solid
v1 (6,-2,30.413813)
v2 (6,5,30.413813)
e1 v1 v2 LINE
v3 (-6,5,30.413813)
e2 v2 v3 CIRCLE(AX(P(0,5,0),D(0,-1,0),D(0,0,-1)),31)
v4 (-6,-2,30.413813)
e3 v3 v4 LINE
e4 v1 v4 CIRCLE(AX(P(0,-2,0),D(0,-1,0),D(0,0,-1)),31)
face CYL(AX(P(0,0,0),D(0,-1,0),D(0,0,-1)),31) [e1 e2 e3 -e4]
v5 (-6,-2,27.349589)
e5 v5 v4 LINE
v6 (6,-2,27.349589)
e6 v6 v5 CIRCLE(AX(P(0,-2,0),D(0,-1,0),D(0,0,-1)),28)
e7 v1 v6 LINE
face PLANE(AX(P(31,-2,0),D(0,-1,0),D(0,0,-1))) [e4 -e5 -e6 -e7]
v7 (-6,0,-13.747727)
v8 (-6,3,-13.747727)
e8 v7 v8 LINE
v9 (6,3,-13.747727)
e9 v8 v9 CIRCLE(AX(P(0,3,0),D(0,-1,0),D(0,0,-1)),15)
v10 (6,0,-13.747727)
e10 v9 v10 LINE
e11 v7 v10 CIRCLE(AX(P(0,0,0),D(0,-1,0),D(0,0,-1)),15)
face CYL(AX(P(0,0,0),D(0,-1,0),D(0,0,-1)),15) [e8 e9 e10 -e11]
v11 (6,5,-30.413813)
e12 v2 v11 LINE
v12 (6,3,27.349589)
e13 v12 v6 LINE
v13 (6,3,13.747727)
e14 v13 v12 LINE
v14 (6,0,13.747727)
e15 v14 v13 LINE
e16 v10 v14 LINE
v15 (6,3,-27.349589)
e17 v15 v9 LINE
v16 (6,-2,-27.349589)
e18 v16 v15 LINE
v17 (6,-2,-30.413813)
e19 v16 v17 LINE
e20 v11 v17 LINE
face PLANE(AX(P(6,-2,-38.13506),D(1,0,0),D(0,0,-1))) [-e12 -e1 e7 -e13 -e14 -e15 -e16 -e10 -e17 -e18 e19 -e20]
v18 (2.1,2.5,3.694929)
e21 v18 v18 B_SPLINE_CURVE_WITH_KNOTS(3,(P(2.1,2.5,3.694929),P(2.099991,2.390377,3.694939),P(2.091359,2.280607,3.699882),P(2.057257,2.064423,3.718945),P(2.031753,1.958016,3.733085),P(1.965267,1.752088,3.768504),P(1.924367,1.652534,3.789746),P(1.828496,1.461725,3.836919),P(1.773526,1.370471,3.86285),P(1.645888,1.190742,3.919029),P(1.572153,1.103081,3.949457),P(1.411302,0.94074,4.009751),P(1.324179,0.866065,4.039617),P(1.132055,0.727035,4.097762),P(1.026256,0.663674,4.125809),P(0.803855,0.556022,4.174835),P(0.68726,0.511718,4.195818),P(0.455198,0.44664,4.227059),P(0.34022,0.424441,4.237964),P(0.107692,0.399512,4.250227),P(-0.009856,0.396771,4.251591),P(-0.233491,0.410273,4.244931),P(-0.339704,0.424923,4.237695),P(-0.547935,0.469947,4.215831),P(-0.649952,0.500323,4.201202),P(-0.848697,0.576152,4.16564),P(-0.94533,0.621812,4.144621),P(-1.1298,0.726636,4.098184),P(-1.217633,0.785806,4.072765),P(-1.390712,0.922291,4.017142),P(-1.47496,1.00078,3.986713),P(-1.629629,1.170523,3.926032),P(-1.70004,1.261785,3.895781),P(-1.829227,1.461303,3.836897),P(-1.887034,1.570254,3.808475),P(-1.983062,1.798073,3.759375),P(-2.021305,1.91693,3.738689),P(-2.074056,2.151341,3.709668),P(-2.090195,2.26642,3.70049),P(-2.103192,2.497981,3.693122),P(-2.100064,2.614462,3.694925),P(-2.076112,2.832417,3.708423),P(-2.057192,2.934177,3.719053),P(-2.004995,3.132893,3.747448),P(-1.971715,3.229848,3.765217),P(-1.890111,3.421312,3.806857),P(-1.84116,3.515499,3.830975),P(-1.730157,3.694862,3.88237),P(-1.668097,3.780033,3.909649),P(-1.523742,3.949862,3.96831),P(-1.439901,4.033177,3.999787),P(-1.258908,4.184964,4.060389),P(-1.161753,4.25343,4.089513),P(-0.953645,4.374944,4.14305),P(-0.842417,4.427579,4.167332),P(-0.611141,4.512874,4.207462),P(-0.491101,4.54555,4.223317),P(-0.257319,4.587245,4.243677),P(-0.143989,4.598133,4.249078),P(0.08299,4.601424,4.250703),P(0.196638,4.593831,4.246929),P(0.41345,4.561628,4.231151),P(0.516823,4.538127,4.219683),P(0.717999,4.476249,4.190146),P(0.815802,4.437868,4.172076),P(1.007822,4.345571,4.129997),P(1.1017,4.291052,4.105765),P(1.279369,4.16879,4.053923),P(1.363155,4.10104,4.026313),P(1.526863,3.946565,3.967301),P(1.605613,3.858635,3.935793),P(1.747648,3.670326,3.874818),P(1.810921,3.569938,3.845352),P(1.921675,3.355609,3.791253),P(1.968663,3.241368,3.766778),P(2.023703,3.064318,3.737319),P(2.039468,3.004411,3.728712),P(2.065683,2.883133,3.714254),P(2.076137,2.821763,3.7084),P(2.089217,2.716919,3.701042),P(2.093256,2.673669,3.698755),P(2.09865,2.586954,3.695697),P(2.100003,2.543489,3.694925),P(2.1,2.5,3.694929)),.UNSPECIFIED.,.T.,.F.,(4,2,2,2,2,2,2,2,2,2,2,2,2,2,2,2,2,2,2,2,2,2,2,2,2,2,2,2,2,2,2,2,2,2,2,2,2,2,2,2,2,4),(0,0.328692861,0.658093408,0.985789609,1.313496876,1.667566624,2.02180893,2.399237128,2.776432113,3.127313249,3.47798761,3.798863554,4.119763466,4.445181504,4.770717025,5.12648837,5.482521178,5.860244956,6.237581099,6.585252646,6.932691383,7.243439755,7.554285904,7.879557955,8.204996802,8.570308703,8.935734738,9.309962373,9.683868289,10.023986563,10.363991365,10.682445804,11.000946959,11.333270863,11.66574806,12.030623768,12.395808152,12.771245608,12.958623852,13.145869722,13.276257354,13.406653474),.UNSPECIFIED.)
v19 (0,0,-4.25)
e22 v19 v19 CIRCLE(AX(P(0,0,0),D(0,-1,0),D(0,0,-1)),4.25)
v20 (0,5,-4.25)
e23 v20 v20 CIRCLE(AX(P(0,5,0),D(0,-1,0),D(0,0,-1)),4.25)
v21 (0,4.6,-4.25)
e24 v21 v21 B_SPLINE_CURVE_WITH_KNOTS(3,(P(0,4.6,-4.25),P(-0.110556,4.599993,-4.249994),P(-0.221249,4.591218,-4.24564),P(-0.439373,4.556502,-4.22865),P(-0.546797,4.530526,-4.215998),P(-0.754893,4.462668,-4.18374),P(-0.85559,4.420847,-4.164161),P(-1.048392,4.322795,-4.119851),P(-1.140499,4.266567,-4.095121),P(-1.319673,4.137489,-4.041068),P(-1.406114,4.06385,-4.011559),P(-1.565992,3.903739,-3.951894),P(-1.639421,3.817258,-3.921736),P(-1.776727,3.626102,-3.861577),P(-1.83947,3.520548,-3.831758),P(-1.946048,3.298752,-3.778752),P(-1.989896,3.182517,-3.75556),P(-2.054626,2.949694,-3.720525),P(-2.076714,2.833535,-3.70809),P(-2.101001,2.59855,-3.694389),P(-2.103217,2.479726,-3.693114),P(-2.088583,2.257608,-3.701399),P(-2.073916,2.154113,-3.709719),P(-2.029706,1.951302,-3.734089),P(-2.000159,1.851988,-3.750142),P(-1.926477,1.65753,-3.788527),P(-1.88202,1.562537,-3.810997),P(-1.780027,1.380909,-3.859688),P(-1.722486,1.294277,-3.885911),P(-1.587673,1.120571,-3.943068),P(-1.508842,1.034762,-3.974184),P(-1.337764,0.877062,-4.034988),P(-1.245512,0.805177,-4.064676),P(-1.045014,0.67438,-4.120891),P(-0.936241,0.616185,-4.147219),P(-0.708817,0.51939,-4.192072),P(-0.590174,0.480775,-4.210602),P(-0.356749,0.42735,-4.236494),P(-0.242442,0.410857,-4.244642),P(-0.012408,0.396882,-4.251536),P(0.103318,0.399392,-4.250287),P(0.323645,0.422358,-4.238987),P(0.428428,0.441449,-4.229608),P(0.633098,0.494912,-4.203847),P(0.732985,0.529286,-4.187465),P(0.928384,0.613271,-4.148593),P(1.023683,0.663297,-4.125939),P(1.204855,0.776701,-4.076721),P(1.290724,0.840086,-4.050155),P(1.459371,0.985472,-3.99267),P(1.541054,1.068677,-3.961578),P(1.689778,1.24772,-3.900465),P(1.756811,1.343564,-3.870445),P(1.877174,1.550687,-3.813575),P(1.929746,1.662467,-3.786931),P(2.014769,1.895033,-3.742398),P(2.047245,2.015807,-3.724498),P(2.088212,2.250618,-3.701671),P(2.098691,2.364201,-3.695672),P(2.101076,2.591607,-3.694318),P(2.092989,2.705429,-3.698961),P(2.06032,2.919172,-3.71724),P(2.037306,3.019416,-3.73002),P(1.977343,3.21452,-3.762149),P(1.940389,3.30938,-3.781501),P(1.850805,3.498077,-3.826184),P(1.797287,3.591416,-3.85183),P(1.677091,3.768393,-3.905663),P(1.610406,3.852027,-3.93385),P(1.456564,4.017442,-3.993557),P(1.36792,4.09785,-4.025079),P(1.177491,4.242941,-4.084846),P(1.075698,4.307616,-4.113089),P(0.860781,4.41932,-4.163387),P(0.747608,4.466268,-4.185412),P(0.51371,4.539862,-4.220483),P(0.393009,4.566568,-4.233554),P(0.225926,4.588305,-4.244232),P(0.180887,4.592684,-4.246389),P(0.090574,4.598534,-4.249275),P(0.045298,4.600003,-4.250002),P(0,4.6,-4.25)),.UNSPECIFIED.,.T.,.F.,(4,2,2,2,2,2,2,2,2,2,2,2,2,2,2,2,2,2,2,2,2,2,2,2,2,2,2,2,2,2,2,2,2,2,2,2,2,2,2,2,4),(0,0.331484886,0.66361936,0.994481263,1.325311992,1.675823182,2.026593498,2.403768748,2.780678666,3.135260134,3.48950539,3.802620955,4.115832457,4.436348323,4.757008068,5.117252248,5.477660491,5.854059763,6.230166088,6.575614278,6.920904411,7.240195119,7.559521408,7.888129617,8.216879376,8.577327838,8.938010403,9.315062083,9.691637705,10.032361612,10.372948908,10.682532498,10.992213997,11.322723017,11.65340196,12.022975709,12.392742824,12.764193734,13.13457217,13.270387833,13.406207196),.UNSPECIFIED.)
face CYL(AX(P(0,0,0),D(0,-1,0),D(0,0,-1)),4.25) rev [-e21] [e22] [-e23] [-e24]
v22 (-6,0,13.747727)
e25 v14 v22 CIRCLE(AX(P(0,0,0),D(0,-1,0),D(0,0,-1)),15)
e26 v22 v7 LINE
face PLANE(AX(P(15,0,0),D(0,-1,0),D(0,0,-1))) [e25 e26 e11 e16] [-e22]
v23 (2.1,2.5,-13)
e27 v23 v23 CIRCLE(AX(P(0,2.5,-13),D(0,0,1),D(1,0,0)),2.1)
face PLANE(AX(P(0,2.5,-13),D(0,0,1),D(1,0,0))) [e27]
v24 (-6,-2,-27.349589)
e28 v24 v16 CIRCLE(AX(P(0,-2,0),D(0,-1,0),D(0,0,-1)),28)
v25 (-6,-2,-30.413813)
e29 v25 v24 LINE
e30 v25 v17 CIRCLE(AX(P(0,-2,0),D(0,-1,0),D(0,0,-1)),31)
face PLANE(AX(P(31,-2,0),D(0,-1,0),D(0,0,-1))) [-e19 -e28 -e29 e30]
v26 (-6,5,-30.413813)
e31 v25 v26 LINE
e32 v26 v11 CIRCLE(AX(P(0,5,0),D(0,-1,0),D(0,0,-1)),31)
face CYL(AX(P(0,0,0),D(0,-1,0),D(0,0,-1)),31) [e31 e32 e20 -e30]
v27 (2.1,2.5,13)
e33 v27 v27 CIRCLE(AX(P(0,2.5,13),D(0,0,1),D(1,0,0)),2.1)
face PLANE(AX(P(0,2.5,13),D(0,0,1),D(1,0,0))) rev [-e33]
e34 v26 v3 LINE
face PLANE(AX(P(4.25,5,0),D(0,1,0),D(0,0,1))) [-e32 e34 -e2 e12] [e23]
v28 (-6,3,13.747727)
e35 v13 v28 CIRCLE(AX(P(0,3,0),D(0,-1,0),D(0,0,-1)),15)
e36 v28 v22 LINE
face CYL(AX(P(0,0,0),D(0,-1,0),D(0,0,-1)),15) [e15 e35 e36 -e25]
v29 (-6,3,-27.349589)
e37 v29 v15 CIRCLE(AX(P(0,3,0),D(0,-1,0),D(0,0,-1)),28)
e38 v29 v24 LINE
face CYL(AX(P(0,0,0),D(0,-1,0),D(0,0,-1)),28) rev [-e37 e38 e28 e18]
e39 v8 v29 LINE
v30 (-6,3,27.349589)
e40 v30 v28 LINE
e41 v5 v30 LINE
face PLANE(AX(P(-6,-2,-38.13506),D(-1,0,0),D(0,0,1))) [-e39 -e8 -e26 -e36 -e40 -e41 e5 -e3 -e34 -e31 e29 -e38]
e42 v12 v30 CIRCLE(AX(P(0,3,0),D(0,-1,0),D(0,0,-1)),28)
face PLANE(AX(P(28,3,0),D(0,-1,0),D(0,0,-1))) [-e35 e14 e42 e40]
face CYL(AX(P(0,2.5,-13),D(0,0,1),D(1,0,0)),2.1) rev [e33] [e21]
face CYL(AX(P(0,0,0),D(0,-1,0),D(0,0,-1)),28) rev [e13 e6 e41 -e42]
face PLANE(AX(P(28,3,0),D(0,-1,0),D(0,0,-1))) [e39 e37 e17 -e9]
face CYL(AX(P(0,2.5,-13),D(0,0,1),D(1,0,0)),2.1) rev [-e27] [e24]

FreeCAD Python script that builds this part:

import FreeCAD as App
import Part
import Sketcher
from FreeCAD import Vector


def add_polygon(sketch, points):
    """Adds a closed chain of lines whose ends are joined by coincident constraints."""
    first, n = sketch.GeometryCount, len(points)
    for a, b in zip(points, points[1:] + points[:1]):
        sketch.addGeometry(Part.LineSegment(App.Vector(*a, 0), App.Vector(*b, 0)), False)
    for i in range(n):
        sketch.addConstraint(Sketcher.Constraint("Coincident", first + i, 2, first + (i + 1) % n, 1))

doc = App.newDocument("Part")
body = doc.addObject("PartDesign::Body", "Body")

sketch1 = body.newObject("Sketcher::SketchObject", "Sketch")
sketch1.AttachmentSupport = (doc.getObject("XY_Plane"), [""])
sketch1.MapMode = "FlatFace"
add_polygon(sketch1, [(4.2, 5), (4.2, 0), (15, 0), (15, 3), (28, 3), (28, -2), (31, -2), (31, 5)])
sketch1.addConstraint(Sketcher.Constraint("Vertical", 0))
sketch1.addConstraint(Sketcher.Constraint("Horizontal", 1))
sketch1.addConstraint(Sketcher.Constraint("Vertical", 2))
sketch1.addConstraint(Sketcher.Constraint("Horizontal", 3))
sketch1.addConstraint(Sketcher.Constraint("Vertical", 4))
sketch1.addConstraint(Sketcher.Constraint("Horizontal", 5))
sketch1.addConstraint(Sketcher.Constraint("Vertical", 6))
sketch1.addConstraint(Sketcher.Constraint("Horizontal", 7))
sketch1.addConstraint(Sketcher.Constraint("PointOnObject", 0, 2, -1))
sketch1.addConstraint(Sketcher.Constraint("Equal", 5, 2))
sketch1.addConstraint(Sketcher.Constraint("Equal", 0, 4))
sketch1.addConstraint(Sketcher.Constraint("DistanceX", 3, 1, 3, 2, 13.0))
sketch1.addConstraint(Sketcher.Constraint("DistanceX", 5, 1, 5, 2, 3.0))
sketch1.addConstraint(Sketcher.Constraint("DistanceY", 0, 2, 0, 1, 5.0))
sketch1.addConstraint(Sketcher.Constraint("DistanceX", -1, 1, 1, 2, 15.0))
sketch1.addConstraint(Sketcher.Constraint("DistanceX", 1, 1, 1, 2, 10.75))
revolution = body.newObject("PartDesign::Revolution", "Revolution")
revolution.Profile = sketch1
revolution.ReferenceAxis = (sketch1, ["V_Axis"])
revolution.Angle = 360

sketch2 = body.newObject("Sketcher::SketchObject", "Sketch001")
sketch2.AttachmentSupport = (doc.getObject("XZ_Plane"), [""])
sketch2.MapMode = "FlatFace"
sketch2.AttachmentOffset = App.Placement(Vector(0, 0, -5), App.Rotation())
add_polygon(sketch2, [(-48, -51), (-48, 51), (48, 51), (48, -51)])
add_polygon(sketch2, [(6, 38), (-6, 38), (-6, -38), (6, -38)])
sketch2.addConstraint(Sketcher.Constraint("Vertical", 0))
sketch2.addConstraint(Sketcher.Constraint("Horizontal", 1))
sketch2.addConstraint(Sketcher.Constraint("Vertical", 2))
sketch2.addConstraint(Sketcher.Constraint("Horizontal", 3))
sketch2.addConstraint(Sketcher.Constraint("Horizontal", 4))
sketch2.addConstraint(Sketcher.Constraint("Vertical", 5))
sketch2.addConstraint(Sketcher.Constraint("Horizontal", 6))
sketch2.addConstraint(Sketcher.Constraint("Vertical", 7))
sketch2.addConstraint(Sketcher.Constraint("Symmetric", 0, 2, 2, 2, -1, 1))
sketch2.addConstraint(Sketcher.Constraint("Symmetric", 4, 2, 6, 2, -1, 1))
sketch2.addConstraint(Sketcher.Constraint("DistanceX", 4, 2, 4, 1, 12.0))
sketch2.addConstraint(Sketcher.Constraint("DistanceY", 5, 2, 5, 1, 76.270119))
sketch2.addConstraint(Sketcher.Constraint("DistanceX", 1, 1, 1, 2, 96.741183))
sketch2.addConstraint(Sketcher.Constraint("DistanceY", 0, 1, 0, 2, 102.357876))
pocket1 = body.newObject("PartDesign::Pocket", "Pocket")
pocket1.Profile = sketch2
pocket1.Type = "ThroughAll"
pocket1.Midplane = True

sketch3 = body.newObject("Sketcher::SketchObject", "Sketch002")
sketch3.AttachmentSupport = (doc.getObject("XY_Plane"), [""])
sketch3.MapMode = "FlatFace"
sketch3.addGeometry(Part.Circle(Vector(0, 2.5, 0), Vector(0, 0, 1), 2.1), False)
sketch3.addConstraint(Sketcher.Constraint("PointOnObject", 0, 3, -2))
sketch3.addConstraint(Sketcher.Constraint("Diameter", 0, 4.2))
sketch3.addConstraint(Sketcher.Constraint("DistanceY", -1, 1, 0, 3, 2.5))
pocket2 = body.newObject("PartDesign::Pocket", "Pocket001")
pocket2.Profile = sketch3
pocket2.Length = 26
pocket2.Midplane = True

doc.recompute()
